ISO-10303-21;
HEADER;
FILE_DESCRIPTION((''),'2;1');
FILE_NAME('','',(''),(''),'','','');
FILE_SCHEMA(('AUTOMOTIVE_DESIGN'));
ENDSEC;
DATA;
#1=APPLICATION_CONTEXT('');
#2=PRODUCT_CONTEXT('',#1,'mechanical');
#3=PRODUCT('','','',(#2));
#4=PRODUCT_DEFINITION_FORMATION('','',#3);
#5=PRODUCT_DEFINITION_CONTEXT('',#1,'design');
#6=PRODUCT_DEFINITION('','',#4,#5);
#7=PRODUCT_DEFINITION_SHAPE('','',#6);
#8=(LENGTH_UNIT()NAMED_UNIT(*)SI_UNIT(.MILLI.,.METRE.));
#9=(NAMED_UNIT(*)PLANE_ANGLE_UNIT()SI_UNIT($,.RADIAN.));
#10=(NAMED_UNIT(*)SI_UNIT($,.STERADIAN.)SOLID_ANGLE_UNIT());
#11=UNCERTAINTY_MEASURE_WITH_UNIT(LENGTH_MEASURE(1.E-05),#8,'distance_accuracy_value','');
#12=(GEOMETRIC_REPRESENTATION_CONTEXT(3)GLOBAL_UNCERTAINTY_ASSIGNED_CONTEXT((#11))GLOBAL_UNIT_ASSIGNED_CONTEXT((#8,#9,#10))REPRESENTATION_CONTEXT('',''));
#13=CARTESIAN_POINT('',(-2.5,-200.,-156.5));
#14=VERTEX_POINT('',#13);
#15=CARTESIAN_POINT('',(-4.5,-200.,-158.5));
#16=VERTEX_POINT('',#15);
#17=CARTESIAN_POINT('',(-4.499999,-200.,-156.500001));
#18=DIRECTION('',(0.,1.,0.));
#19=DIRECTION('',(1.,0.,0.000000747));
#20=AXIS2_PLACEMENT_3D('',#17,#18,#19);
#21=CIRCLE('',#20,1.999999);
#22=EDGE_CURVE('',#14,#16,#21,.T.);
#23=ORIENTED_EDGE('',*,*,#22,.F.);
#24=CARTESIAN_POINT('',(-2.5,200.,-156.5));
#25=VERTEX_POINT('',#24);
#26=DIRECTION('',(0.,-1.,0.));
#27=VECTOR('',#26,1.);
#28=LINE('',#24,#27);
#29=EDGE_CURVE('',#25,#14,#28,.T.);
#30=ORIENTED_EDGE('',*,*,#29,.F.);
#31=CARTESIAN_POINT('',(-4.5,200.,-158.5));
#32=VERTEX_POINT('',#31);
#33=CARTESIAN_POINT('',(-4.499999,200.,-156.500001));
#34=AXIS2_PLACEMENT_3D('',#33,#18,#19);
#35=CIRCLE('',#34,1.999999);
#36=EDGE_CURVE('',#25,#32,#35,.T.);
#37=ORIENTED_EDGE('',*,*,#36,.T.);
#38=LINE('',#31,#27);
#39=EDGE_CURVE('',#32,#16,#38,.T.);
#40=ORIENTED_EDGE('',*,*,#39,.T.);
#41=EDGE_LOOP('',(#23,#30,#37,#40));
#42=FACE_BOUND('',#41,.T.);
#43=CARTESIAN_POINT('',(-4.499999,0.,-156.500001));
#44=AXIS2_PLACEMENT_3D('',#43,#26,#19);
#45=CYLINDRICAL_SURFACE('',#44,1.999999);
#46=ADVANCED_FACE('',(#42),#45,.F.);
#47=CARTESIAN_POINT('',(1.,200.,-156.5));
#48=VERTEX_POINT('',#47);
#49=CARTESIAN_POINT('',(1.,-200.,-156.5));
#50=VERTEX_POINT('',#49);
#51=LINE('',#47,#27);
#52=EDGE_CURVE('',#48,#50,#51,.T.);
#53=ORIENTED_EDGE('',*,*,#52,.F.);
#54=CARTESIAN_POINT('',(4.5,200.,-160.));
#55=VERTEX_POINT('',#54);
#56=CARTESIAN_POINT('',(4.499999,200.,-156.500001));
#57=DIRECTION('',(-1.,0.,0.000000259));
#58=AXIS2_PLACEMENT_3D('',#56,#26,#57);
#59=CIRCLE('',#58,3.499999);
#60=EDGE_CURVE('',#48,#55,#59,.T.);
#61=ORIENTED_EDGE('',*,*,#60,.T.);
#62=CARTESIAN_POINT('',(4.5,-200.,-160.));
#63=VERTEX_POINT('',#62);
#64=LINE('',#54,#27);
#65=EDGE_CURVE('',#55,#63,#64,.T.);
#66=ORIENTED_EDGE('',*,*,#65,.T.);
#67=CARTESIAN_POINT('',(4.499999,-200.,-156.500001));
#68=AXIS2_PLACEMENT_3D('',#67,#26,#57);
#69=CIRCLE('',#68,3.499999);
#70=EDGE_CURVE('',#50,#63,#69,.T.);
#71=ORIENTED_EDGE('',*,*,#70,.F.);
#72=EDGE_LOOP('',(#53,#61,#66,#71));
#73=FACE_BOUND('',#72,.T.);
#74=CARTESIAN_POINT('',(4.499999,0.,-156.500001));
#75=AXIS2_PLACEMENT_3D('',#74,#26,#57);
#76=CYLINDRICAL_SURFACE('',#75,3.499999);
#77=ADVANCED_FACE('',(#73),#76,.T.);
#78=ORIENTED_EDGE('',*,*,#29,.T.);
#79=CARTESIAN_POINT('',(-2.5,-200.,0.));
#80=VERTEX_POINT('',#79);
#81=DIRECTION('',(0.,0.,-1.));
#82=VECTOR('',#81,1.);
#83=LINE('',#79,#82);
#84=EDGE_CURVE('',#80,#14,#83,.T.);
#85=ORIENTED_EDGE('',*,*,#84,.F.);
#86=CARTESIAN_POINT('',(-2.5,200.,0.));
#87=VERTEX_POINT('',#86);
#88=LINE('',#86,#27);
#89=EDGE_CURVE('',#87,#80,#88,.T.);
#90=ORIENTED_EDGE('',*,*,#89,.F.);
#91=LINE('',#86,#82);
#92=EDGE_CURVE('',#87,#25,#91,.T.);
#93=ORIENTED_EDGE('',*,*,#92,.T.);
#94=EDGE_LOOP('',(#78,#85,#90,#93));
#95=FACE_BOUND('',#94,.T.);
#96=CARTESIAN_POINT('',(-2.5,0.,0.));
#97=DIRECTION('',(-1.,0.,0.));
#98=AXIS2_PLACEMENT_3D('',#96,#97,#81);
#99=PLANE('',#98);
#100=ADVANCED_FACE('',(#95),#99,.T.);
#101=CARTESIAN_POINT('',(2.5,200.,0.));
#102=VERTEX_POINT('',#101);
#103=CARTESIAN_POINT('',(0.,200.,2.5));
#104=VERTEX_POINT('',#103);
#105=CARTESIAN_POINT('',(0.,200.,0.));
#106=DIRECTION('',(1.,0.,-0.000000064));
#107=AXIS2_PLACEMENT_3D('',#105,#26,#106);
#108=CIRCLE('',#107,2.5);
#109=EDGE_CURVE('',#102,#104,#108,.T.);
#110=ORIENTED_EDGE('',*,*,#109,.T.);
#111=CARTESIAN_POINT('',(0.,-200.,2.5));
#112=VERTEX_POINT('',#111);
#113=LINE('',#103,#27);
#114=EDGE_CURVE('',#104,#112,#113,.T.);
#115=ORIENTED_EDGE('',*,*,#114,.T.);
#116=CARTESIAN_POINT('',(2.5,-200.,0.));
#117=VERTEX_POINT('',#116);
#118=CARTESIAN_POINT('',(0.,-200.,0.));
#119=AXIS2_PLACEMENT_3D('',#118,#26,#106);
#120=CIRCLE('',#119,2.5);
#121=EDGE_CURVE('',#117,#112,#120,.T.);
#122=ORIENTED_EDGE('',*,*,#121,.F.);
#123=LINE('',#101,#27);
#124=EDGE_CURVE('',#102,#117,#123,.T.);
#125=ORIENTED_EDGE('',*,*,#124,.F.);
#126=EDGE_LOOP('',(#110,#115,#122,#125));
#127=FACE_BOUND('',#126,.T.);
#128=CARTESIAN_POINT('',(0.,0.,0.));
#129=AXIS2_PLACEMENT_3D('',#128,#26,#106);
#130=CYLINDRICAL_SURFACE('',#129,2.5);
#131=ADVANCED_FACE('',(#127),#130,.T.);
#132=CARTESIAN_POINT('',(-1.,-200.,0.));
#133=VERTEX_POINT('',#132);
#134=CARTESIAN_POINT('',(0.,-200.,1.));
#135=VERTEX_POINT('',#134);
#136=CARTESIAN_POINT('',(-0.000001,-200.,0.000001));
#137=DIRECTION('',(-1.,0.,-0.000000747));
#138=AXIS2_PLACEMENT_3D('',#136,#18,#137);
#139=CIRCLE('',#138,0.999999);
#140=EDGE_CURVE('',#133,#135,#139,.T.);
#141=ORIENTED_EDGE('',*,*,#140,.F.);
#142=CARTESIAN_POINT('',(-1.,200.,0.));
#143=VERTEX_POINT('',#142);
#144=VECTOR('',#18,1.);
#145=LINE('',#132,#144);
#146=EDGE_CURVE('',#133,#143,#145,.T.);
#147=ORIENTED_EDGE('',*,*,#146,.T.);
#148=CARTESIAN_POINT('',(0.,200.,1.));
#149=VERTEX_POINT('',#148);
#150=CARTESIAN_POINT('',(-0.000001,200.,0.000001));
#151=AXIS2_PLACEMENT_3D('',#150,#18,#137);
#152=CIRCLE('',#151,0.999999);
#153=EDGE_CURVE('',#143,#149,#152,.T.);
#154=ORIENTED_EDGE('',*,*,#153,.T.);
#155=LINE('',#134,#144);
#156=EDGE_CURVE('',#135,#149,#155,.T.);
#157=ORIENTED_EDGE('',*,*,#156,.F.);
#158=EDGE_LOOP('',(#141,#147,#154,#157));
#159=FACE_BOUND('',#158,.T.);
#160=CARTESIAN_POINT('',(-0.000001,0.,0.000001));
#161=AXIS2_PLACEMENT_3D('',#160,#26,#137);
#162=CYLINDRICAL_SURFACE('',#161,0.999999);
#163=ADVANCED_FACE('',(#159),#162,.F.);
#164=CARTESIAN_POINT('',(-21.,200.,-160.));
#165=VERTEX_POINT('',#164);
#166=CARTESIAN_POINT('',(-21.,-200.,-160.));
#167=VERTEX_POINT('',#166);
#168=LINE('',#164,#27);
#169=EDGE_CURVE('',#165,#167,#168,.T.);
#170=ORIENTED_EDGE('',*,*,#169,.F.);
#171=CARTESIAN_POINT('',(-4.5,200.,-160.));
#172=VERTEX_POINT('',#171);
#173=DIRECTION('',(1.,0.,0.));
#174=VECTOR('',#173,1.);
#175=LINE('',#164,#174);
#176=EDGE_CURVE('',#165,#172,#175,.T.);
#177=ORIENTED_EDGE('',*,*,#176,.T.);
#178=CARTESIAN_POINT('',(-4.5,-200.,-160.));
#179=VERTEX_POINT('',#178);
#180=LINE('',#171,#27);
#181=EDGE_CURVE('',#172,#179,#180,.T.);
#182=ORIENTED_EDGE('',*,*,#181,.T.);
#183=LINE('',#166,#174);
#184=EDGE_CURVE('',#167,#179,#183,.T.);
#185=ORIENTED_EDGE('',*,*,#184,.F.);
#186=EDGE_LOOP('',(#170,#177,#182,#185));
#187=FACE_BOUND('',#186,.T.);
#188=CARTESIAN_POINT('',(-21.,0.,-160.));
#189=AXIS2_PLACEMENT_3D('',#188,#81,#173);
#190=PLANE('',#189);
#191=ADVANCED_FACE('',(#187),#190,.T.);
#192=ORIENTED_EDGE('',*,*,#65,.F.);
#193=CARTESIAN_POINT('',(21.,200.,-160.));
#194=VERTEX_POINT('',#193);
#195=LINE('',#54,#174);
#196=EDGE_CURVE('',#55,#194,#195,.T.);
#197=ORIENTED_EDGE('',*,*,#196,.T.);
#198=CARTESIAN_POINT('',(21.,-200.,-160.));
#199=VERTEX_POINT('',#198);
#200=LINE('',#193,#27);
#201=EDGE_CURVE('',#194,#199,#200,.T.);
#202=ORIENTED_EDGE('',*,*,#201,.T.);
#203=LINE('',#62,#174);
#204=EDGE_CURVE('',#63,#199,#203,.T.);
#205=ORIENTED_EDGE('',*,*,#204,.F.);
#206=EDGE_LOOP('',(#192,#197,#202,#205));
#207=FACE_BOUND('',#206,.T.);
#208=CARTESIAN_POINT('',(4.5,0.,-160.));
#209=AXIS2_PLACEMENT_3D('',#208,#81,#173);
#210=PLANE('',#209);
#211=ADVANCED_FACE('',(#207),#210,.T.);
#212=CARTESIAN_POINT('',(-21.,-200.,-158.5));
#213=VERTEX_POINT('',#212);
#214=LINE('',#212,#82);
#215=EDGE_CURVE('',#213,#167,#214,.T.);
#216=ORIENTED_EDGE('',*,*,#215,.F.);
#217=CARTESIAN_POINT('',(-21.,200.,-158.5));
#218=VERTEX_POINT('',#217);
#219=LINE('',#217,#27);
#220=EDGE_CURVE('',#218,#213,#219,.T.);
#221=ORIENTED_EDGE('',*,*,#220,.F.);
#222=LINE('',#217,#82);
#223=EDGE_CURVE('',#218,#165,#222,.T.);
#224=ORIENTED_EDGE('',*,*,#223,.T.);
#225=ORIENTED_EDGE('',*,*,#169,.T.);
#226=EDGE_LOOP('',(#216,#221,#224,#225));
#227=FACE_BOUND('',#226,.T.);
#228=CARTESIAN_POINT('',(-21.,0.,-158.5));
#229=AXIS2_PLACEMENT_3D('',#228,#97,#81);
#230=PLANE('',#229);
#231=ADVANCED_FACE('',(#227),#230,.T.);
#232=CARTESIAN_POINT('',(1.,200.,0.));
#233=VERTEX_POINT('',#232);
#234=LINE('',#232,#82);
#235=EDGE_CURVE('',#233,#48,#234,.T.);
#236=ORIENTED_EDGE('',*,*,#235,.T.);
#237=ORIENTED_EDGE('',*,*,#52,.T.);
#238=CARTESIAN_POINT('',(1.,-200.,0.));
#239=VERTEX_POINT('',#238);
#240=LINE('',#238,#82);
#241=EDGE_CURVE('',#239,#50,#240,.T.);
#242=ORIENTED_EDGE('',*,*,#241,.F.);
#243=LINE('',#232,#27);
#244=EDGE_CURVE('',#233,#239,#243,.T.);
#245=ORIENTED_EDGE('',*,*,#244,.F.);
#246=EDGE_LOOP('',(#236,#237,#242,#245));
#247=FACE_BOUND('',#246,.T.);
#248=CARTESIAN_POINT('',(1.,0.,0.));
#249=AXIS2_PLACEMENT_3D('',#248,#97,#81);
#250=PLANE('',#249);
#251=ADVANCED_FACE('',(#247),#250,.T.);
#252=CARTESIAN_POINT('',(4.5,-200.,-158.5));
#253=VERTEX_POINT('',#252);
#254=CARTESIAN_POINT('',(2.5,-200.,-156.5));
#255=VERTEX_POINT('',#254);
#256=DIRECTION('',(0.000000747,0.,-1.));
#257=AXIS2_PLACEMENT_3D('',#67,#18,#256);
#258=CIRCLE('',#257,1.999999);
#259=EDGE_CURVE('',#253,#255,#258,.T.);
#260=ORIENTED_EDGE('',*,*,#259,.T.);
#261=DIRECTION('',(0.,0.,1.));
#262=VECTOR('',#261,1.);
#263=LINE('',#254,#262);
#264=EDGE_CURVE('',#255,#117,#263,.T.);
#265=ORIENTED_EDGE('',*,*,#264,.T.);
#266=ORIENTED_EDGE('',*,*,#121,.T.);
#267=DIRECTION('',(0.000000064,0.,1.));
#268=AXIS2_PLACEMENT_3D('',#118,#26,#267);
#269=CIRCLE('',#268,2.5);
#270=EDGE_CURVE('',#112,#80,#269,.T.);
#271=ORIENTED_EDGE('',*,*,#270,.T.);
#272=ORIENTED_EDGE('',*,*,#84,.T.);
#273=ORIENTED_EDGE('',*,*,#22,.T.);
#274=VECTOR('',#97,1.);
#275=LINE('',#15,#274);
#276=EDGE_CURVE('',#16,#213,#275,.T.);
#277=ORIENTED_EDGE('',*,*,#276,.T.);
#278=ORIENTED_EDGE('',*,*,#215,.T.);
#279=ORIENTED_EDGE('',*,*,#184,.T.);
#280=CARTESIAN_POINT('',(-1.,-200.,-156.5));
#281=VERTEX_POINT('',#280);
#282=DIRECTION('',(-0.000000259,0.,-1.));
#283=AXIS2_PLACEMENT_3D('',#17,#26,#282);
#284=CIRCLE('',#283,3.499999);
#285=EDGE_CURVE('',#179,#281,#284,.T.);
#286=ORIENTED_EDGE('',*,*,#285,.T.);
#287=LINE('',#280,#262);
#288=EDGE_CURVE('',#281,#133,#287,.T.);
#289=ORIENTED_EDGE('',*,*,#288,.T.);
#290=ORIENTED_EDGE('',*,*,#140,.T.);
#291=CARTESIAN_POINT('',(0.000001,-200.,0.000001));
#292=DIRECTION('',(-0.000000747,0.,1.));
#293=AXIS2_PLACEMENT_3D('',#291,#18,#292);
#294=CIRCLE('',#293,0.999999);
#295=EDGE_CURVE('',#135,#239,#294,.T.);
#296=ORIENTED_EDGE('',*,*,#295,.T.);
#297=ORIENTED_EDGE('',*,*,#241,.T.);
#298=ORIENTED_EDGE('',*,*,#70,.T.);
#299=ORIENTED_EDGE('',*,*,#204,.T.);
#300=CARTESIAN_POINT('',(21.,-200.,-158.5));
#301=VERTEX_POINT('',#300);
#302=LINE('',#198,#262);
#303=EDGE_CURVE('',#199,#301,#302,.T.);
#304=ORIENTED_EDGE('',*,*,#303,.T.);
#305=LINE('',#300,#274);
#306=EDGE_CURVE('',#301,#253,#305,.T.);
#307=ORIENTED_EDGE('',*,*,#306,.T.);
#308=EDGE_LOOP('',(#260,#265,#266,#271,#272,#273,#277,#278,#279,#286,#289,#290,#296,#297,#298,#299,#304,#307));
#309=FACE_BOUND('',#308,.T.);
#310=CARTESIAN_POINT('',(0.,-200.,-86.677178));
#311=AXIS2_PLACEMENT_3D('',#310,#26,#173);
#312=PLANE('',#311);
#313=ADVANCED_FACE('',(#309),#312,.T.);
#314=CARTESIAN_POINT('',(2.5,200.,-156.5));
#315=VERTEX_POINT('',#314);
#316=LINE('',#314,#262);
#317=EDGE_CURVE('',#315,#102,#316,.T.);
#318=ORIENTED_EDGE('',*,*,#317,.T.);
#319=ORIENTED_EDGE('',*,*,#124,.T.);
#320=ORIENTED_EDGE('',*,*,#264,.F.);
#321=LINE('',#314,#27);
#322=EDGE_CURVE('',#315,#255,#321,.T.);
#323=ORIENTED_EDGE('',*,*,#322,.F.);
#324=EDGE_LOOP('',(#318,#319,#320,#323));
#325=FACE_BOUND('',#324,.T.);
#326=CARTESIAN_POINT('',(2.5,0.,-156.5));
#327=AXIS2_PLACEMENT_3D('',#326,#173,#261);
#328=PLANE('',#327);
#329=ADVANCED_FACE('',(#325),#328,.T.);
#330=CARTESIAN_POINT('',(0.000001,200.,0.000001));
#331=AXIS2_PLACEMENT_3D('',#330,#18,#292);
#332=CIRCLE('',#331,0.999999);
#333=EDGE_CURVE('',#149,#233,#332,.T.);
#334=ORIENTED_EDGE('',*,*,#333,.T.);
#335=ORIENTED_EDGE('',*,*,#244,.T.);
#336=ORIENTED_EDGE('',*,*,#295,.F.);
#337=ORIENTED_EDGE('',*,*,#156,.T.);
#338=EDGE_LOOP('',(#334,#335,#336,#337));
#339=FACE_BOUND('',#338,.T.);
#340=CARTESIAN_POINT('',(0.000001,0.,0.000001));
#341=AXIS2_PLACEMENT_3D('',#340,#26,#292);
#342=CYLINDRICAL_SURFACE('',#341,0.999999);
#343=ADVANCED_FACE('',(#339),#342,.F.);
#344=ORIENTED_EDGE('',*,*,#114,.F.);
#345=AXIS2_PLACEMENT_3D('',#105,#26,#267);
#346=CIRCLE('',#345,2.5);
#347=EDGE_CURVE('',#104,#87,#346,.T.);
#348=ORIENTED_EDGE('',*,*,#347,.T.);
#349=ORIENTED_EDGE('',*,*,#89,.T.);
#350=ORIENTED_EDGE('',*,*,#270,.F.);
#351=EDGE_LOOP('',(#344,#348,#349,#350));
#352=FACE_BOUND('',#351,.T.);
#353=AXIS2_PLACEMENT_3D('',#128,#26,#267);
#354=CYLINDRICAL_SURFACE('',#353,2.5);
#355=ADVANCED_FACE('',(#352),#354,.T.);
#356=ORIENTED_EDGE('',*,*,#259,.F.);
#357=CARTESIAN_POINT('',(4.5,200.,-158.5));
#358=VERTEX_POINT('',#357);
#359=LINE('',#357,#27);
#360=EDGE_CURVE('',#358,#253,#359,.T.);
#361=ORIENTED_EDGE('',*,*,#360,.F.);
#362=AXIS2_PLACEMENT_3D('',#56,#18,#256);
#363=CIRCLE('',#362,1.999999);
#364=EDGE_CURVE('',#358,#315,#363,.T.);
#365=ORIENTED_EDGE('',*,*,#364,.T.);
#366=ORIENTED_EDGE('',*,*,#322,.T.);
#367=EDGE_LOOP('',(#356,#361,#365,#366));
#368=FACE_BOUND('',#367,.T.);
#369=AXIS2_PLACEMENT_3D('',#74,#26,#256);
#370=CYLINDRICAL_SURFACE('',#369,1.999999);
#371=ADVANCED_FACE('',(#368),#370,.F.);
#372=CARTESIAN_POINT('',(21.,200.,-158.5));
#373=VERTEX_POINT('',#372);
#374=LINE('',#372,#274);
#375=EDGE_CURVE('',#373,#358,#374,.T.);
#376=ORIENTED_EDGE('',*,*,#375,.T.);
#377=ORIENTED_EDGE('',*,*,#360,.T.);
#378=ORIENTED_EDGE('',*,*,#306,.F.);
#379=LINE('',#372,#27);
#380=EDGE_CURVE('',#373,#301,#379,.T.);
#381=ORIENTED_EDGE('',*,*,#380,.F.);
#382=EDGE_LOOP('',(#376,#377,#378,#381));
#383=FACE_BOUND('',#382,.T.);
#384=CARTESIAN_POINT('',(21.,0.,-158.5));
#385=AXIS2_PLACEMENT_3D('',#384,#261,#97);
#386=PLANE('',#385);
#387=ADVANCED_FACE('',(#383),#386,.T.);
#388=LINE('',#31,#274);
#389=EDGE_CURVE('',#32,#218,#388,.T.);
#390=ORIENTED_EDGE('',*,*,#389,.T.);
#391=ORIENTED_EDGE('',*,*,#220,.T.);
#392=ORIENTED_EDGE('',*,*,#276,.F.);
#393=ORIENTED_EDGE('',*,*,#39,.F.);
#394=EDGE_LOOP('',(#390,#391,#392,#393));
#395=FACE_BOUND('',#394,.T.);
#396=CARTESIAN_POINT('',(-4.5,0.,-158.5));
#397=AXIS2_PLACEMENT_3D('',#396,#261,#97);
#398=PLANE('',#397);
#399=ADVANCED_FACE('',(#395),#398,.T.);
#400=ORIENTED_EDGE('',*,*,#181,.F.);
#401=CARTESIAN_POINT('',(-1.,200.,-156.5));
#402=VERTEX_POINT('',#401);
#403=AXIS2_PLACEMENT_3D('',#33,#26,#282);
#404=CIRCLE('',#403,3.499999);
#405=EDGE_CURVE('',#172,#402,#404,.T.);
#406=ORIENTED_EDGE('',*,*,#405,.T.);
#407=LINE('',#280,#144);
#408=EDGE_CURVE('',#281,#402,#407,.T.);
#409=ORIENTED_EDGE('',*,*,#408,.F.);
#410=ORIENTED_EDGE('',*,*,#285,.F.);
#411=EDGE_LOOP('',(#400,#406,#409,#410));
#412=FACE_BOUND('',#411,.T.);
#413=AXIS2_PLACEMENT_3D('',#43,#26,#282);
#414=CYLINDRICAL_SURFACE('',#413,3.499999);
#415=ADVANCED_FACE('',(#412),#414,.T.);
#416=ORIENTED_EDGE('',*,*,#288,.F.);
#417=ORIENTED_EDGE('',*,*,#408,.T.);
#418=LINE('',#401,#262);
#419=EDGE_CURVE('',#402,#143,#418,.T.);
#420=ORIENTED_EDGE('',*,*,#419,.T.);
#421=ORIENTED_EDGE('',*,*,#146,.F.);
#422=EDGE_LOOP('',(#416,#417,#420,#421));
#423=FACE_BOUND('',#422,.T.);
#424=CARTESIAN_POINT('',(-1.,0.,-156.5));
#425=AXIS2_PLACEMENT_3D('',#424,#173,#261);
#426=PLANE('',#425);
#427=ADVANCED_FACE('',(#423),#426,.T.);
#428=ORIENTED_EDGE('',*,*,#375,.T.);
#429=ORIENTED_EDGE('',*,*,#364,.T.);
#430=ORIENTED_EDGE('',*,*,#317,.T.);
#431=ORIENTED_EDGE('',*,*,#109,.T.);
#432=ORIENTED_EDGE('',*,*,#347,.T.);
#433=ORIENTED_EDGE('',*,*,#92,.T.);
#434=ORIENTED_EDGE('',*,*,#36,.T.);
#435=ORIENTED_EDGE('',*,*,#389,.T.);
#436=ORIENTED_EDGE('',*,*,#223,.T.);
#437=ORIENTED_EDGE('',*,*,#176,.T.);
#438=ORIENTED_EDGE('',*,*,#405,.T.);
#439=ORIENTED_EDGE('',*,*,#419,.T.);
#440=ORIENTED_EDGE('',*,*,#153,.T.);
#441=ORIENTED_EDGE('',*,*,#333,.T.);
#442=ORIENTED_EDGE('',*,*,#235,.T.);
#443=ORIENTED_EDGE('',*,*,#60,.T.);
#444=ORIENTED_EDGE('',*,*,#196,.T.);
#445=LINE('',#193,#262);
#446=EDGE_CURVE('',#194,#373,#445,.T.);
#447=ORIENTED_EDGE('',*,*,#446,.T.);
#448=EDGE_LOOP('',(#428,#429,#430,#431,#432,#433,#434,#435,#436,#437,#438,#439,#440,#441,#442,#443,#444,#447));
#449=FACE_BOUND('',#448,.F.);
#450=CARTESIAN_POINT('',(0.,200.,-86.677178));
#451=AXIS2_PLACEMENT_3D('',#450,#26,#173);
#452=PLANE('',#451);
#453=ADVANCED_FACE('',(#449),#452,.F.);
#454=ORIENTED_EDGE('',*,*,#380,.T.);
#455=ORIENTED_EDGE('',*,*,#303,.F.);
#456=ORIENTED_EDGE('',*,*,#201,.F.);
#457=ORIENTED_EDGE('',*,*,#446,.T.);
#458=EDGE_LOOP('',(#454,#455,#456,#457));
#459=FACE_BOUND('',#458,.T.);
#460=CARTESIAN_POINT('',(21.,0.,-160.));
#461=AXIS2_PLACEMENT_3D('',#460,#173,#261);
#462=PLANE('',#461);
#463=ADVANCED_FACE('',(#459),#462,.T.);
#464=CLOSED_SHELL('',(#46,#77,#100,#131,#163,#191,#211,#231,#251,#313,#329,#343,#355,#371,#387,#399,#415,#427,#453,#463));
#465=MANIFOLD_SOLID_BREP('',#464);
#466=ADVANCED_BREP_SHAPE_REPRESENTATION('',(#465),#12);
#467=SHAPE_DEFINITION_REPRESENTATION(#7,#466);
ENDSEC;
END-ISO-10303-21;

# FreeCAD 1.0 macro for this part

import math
import FreeCAD as App
import Part
import Sketcher

doc = App.newDocument("Part")
body = doc.addObject("PartDesign::Body", "Body")

sketch1 = doc.addObject("Sketcher::SketchObject", "Sketch")
body.addObject(sketch1)
sketch1.AttachmentSupport = (doc.XZ_Plane, [""])
sketch1.MapMode = "FlatFace"
sketch1.addGeometry([
    Part.ArcOfCircle(Part.Circle(App.Vector(0, 0, 0), App.Vector(0, 0, 1), 1), math.radians(0), math.radians(90)),
    Part.LineSegment(App.Vector(1, 0, 0), App.Vector(1, -156.5, 0)),
    Part.ArcOfCircle(Part.Circle(App.Vector(4.5, -156.5, 0), App.Vector(0, 0, 1), 3.5), math.radians(180), math.radians(270)),
    Part.LineSegment(App.Vector(4.5, -160, 0), App.Vector(21, -160, 0)),
    Part.LineSegment(App.Vector(21, -160, 0), App.Vector(21, -158.5, 0)),
    Part.LineSegment(App.Vector(21, -158.5, 0), App.Vector(4.5, -158.5, 0)),
    Part.ArcOfCircle(Part.Circle(App.Vector(4.5, -156.5, 0), App.Vector(0, 0, 1), 2), math.radians(180), math.radians(270)),
    Part.LineSegment(App.Vector(2.5, -156.5, 0), App.Vector(2.5, 0, 0)),
    Part.ArcOfCircle(Part.Circle(App.Vector(0, 0, 0), App.Vector(0, 0, 1), 2.5), math.radians(0), math.radians(90)),
    Part.ArcOfCircle(Part.Circle(App.Vector(0, 0, 0), App.Vector(0, 0, 1), 2.5), math.radians(90), math.radians(180)),
    Part.LineSegment(App.Vector(-2.5, 0, 0), App.Vector(-2.5, -156.5, 0)),
    Part.ArcOfCircle(Part.Circle(App.Vector(-4.5, -156.5, 0), App.Vector(0, 0, 1), 2), math.radians(-90), math.radians(0)),
    Part.LineSegment(App.Vector(-4.5, -158.5, 0), App.Vector(-21, -158.5, 0)),
    Part.LineSegment(App.Vector(-21, -158.5, 0), App.Vector(-21, -160, 0)),
    Part.LineSegment(App.Vector(-21, -160, 0), App.Vector(-4.5, -160, 0)),
    Part.ArcOfCircle(Part.Circle(App.Vector(-4.5, -156.5, 0), App.Vector(0, 0, 1), 3.5), math.radians(-90), math.radians(0)),
    Part.LineSegment(App.Vector(-1, -156.5, 0), App.Vector(-1, 0, 0)),
    Part.ArcOfCircle(Part.Circle(App.Vector(0, 0, 0), App.Vector(0, 0, 1), 1), math.radians(90), math.radians(180)),
], False)
sketch1.addConstraint([
    Sketcher.Constraint("Tangent", 0, 1, 1, 1),
    Sketcher.Constraint("Tangent", 1, 2, 2, 1),
    Sketcher.Constraint("Tangent", 2, 2, 3, 1),
    Sketcher.Constraint("Coincident", 3, 2, 4, 1),
    Sketcher.Constraint("Coincident", 4, 2, 5, 1),
    Sketcher.Constraint("Tangent", 5, 2, 6, 2),
    Sketcher.Constraint("Tangent", 6, 1, 7, 1),
    Sketcher.Constraint("Tangent", 7, 2, 8, 1),
    Sketcher.Constraint("Tangent", 8, 2, 9, 1),
    Sketcher.Constraint("Tangent", 9, 2, 10, 1),
    Sketcher.Constraint("Tangent", 10, 2, 11, 2),
    Sketcher.Constraint("Tangent", 11, 1, 12, 1),
    Sketcher.Constraint("Coincident", 12, 2, 13, 1),
    Sketcher.Constraint("Coincident", 13, 2, 14, 1),
    Sketcher.Constraint("Tangent", 14, 2, 15, 1),
    Sketcher.Constraint("Tangent", 15, 2, 16, 1),
    Sketcher.Constraint("Tangent", 16, 2, 17, 2),
    Sketcher.Constraint("Tangent", 17, 1, 0, 2),
    Sketcher.Constraint("Vertical", 1),
    Sketcher.Constraint("Horizontal", 3),
    Sketcher.Constraint("Vertical", 4),
    Sketcher.Constraint("Horizontal", 5),
    Sketcher.Constraint("Vertical", 7),
    Sketcher.Constraint("Vertical", 10),
    Sketcher.Constraint("Horizontal", 12),
    Sketcher.Constraint("Vertical", 13),
    Sketcher.Constraint("Horizontal", 14),
    Sketcher.Constraint("Vertical", 16),
    Sketcher.Constraint("Coincident", 0, 3, -1, 1),
    Sketcher.Constraint("Coincident", 8, 3, -1, 1),
    Sketcher.Constraint("Coincident", 6, 3, 2, 3),
    Sketcher.Constraint("Coincident", 15, 3, 11, 3),
    Sketcher.Constraint("Equal", 8, 9),
    Sketcher.Constraint("Equal", 6, 11),
    Sketcher.Constraint("Equal", 2, 15),
    Sketcher.Constraint("Symmetric", 4, 2, 12, 2, -2),
    Sketcher.Constraint("PointOnObject", 8, 2, -2),
    Sketcher.Constraint("PointOnObject", 17, 1, -2),
    Sketcher.Constraint("Radius", 0, 0.999999),
    Sketcher.Constraint("Radius", 6, 1.999999),
    Sketcher.Constraint("Radius", 2, 3.499999),
    Sketcher.Constraint("DistanceX", 3, 1, 3, 2, 16.5),
    Sketcher.Constraint("DistanceY", 1, 2, 1, 1, 156.5),
])
pad1 = doc.addObject("PartDesign::Pad", "Pad")
body.addObject(pad1)
pad1.Profile = sketch1
pad1.Length = 400
pad1.Midplane = True

doc.recompute()
